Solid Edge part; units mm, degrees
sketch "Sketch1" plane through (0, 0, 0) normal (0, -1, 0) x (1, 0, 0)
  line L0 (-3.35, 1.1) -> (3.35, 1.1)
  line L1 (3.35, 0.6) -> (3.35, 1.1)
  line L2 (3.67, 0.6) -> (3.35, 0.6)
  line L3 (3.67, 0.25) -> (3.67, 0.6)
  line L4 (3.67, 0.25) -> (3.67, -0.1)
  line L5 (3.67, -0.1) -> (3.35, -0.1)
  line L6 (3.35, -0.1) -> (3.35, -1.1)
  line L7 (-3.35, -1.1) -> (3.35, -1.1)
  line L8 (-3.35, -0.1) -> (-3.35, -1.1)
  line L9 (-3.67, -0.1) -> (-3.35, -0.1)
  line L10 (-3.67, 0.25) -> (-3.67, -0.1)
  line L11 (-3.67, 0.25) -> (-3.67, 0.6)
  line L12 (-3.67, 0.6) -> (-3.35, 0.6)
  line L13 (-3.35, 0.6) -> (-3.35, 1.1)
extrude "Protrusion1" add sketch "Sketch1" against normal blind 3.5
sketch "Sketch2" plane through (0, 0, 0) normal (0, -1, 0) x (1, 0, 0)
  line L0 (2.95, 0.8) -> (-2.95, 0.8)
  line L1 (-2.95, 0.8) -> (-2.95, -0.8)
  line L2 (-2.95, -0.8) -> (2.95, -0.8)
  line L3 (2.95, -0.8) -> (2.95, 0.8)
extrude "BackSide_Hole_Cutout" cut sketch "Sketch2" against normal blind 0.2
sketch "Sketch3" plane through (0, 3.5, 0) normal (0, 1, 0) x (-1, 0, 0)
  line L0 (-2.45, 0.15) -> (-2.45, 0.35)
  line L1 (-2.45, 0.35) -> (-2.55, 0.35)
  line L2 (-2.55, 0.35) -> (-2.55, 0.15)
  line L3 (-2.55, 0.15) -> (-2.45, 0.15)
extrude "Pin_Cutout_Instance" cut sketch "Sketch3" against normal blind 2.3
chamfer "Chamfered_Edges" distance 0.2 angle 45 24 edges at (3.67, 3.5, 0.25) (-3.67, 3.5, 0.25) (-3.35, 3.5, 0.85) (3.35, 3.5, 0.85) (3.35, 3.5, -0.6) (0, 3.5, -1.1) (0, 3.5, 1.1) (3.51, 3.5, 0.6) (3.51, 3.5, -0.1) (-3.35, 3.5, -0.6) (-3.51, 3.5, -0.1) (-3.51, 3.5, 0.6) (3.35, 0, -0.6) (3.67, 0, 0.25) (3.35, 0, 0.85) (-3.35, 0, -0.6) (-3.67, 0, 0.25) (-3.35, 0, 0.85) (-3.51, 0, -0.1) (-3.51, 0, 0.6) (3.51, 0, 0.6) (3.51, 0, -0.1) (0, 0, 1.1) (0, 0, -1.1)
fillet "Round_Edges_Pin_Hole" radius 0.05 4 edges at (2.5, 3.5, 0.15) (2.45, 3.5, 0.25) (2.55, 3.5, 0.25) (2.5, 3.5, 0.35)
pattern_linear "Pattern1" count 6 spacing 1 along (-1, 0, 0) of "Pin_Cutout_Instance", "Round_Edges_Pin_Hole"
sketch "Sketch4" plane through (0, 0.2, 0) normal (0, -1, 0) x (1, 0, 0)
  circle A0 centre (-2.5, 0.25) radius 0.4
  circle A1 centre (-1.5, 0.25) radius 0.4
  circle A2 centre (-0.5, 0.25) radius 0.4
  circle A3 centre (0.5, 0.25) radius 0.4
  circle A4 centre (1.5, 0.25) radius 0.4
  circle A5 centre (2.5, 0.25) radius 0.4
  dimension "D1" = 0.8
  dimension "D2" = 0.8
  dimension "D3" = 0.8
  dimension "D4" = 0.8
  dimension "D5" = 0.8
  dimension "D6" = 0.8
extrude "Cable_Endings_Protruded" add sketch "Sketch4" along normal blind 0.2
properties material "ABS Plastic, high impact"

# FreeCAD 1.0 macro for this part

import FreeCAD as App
import Part
import Sketcher

V = App.Vector
Q = App.Units.Quantity


def edges_at(feature, points):
    """Names of the edges that pass closest to the given points."""
    edges = feature.Shape.Edges
    near = lambda p: min(range(len(edges)), key=lambda i: edges[i].distToShape(Part.Vertex(*p))[0])
    return sorted({f"Edge{near(p) + 1}" for p in points})


def add_polygon(sketch, points):
    """Adds a closed chain of lines whose ends are joined by coincident constraints."""
    first, n = sketch.GeometryCount, len(points)
    for a, b in zip(points, points[1:] + points[:1]):
        sketch.addGeometry(Part.LineSegment(App.Vector(*a, 0), App.Vector(*b, 0)), False)
    for i in range(n):
        sketch.addConstraint(Sketcher.Constraint("Coincident", first + i, 2, first + (i + 1) % n, 1))

doc = App.newDocument("Part")
body = doc.addObject("PartDesign::Body", "Body")

sketch1 = doc.addObject("Sketcher::SketchObject", "Sketch")
body.addObject(sketch1)
sketch1.AttachmentSupport = (doc.XZ_Plane, [""])
sketch1.MapMode = "FlatFace"
add_polygon(sketch1, [(3.35, 1.1), (-3.35, 1.1), (-3.35, 0.6), (-3.67, 0.6), (-3.67, -0.1), (-3.35, -0.1), (-3.35, -1.1), (3.35, -1.1), (3.35, -0.1), (3.67, -0.1), (3.67, 0.6), (3.35, 0.6)])
sketch1.addConstraint(Sketcher.Constraint("Horizontal", 0))
sketch1.addConstraint(Sketcher.Constraint("Vertical", 1))
sketch1.addConstraint(Sketcher.Constraint("Horizontal", 2))
sketch1.addConstraint(Sketcher.Constraint("Vertical", 3))
sketch1.addConstraint(Sketcher.Constraint("Horizontal", 4))
sketch1.addConstraint(Sketcher.Constraint("Vertical", 5))
sketch1.addConstraint(Sketcher.Constraint("Horizontal", 6))
sketch1.addConstraint(Sketcher.Constraint("Vertical", 7))
sketch1.addConstraint(Sketcher.Constraint("Horizontal", 8))
sketch1.addConstraint(Sketcher.Constraint("Vertical", 9))
sketch1.addConstraint(Sketcher.Constraint("Horizontal", 10))
sketch1.addConstraint(Sketcher.Constraint("Vertical", 11))
sketch1.addConstraint(Sketcher.Constraint("Symmetric", 0, 2, 6, 2, -1, 1))
sketch1.addConstraint(Sketcher.Constraint("Symmetric", 4, 2, 7, 2, -2))
sketch1.addConstraint(Sketcher.Constraint("Symmetric", 2, 2, 9, 2, -2))
sketch1.addConstraint(Sketcher.Constraint("Vertical", 7, 2, 10, 2))
sketch1.addConstraint(Sketcher.Constraint("DistanceY", 5, 2, 5, 1, Q("1 mm")))
sketch1.addConstraint(Sketcher.Constraint("DistanceX", 0, 2, 0, 1, Q("6.7 mm")))
sketch1.addConstraint(Sketcher.Constraint("DistanceY", 1, 2, 1, 1, Q("0.5 mm")))
sketch1.addConstraint(Sketcher.Constraint("DistanceY", 3, 2, 3, 1, Q("0.7 mm")))
sketch1.addConstraint(Sketcher.Constraint("DistanceX", 2, 2, 2, 1, Q("0.32 mm")))
pad1 = doc.addObject("PartDesign::Pad", "Pad")
body.addObject(pad1)
pad1.Profile = sketch1
pad1.Length = 3.5
pad1.Reversed = True

sketch2 = doc.addObject("Sketcher::SketchObject", "Sketch001")
body.addObject(sketch2)
sketch2.AttachmentSupport = (doc.XZ_Plane, [""])
sketch2.MapMode = "FlatFace"
add_polygon(sketch2, [(3, -0.8), (3, 0.8), (-3, 0.8), (-3, -0.8)])
sketch2.addConstraint(Sketcher.Constraint("Vertical", 0))
sketch2.addConstraint(Sketcher.Constraint("Horizontal", 1))
sketch2.addConstraint(Sketcher.Constraint("Vertical", 2))
sketch2.addConstraint(Sketcher.Constraint("Horizontal", 3))
sketch2.addConstraint(Sketcher.Constraint("Symmetric", 0, 2, 2, 2, -1, 1))
sketch2.addConstraint(Sketcher.Constraint("DistanceX", 1, 2, 1, 1, Q("5.9 mm")))
sketch2.addConstraint(Sketcher.Constraint("DistanceY", 0, 1, 0, 2, Q("1.6 mm")))
pocket1 = doc.addObject("PartDesign::Pocket", "Pocket")
body.addObject(pocket1)
pocket1.Profile = sketch2
pocket1.Length = 0.2

sketch3 = doc.addObject("Sketcher::SketchObject", "Sketch002")
body.addObject(sketch3)
sketch3.AttachmentSupport = (doc.XZ_Plane, [""])
sketch3.MapMode = "FlatFace"
sketch3.AttachmentOffset = App.Placement(V(0, 0, -3.5), App.Rotation())
add_polygon(sketch3, [(2.55, 0.15), (2.45, 0.15), (2.45, 0.35), (2.55, 0.35)])
sketch3.addConstraint(Sketcher.Constraint("Horizontal", 0))
sketch3.addConstraint(Sketcher.Constraint("Vertical", 1))
sketch3.addConstraint(Sketcher.Constraint("Horizontal", 2))
sketch3.addConstraint(Sketcher.Constraint("Vertical", 3))
sketch3.addConstraint(Sketcher.Constraint("DistanceX", 0, 2, 0, 1, Q("0.1 mm")))
sketch3.addConstraint(Sketcher.Constraint("DistanceY", 1, 1, 1, 2, Q("0.2 mm")))
sketch3.addConstraint(Sketcher.Constraint("DistanceX", -1, 1, 0, 2, Q("2.45 mm")))
sketch3.addConstraint(Sketcher.Constraint("DistanceY", -1, 1, 0, 2, Q("0.15 mm")))
pocket2 = doc.addObject("PartDesign::Pocket", "Pocket001")
body.addObject(pocket2)
pocket2.Profile = sketch3
pocket2.Length = 2.3
pocket2.Reversed = True
doc.recompute()

chamfer = doc.addObject("PartDesign::Chamfer", "Chamfer")
body.addObject(chamfer)
chamfer.Base = (pocket2, edges_at(pocket2, [
    (3.67, 3.5, 0.25),
    (-3.67, 3.5, 0.25),
    (-3.35, 3.5, 0.85),
    (3.35, 3.5, 0.85),
    (3.35, 3.5, -0.6),
    (0, 3.5, -1.1),
    (0, 3.5, 1.1),
    (3.51, 3.5, 0.6),
    (3.51, 3.5, -0.1),
    (-3.35, 3.5, -0.6),
    (-3.51, 3.5, -0.1),
    (-3.51, 3.5, 0.6),
    (3.35, 0, -0.6),
    (3.67, 0, 0.25),
    (3.35, 0, 0.85),
    (-3.35, 0, -0.6),
    (-3.67, 0, 0.25),
    (-3.35, 0, 0.85),
    (-3.51, 0, -0.1),
    (-3.51, 0, 0.6),
    (3.51, 0, 0.6),
    (3.51, 0, -0.1),
    (0, 0, 1.1),
    (0, 0, -1.1),
]))
chamfer.Size = 0.2
doc.recompute()

fillet = doc.addObject("PartDesign::Fillet", "Fillet")
body.addObject(fillet)
fillet.Base = (chamfer, edges_at(chamfer, [
    (2.5, 3.5, 0.15),
    (2.45, 3.5, 0.25),
    (2.55, 3.5, 0.25),
    (2.5, 3.5, 0.35),
]))
fillet.Radius = 0.05
doc.recompute()

linearpattern = doc.addObject("PartDesign::LinearPattern", "LinearPattern")
body.addObject(linearpattern)
linearpattern.Originals = [pocket2, fillet]
linearpattern.Direction = (doc.X_Axis, [""])
linearpattern.Mode = "offset"
linearpattern.Offset = 1
linearpattern.Occurrences = 6
linearpattern.Reversed = True
body.Tip = linearpattern

sketch4 = doc.addObject("Sketcher::SketchObject", "Sketch003")
body.addObject(sketch4)
sketch4.AttachmentSupport = (doc.XZ_Plane, [""])
sketch4.MapMode = "FlatFace"
sketch4.AttachmentOffset = App.Placement(V(0, 0, -0.2), App.Rotation())
sketch4.addGeometry(Part.Circle(V(-2.5, 0.25, 0), V(0, 0, 1), 0.4), False)
sketch4.addGeometry(Part.Circle(V(-1.5, 0.25, 0), V(0, 0, 1), 0.4), False)
sketch4.addGeometry(Part.Circle(V(-0.5, 0.25, 0), V(0, 0, 1), 0.4), False)
sketch4.addGeometry(Part.Circle(V(0.5, 0.25, 0), V(0, 0, 1), 0.4), False)
sketch4.addGeometry(Part.Circle(V(1.5, 0.25, 0), V(0, 0, 1), 0.4), False)
sketch4.addGeometry(Part.Circle(V(2.5, 0.25, 0), V(0, 0, 1), 0.4), False)
sketch4.addConstraint(Sketcher.Constraint("Equal", 0, 1))
sketch4.addConstraint(Sketcher.Constraint("Equal", 1, 2))
sketch4.addConstraint(Sketcher.Constraint("Equal", 2, 3))
sketch4.addConstraint(Sketcher.Constraint("Equal", 3, 4))
sketch4.addConstraint(Sketcher.Constraint("Equal", 4, 5))
sketch4.addConstraint(Sketcher.Constraint("Symmetric", 2, 3, 3, 3, -2))
sketch4.addConstraint(Sketcher.Constraint("Symmetric", 1, 3, 4, 3, -2))
sketch4.addConstraint(Sketcher.Constraint("Symmetric", 0, 3, 5, 3, -2))
sketch4.addConstraint(Sketcher.Constraint("Horizontal", 0, 3, 1, 3))
sketch4.addConstraint(Sketcher.Constraint("Horizontal", 1, 3, 2, 3))
sketch4.addConstraint(Sketcher.Constraint("Diameter", 0, Q("0.8 mm")))
sketch4.addConstraint(Sketcher.Constraint("DistanceX", 0, 3, 1, 3, Q("1 mm")))
sketch4.addConstraint(Sketcher.Constraint("DistanceX", 1, 3, 2, 3, Q("1 mm")))
sketch4.addConstraint(Sketcher.Constraint("DistanceX", 2, 3, 3, 3, Q("1 mm")))
sketch4.addConstraint(Sketcher.Constraint("DistanceY", -1, 1, 0, 3, Q("0.25 mm")))
pad2 = doc.addObject("PartDesign::Pad", "Pad001")
body.addObject(pad2)
pad2.Profile = sketch4
pad2.Length = 0.2

doc.recompute()
